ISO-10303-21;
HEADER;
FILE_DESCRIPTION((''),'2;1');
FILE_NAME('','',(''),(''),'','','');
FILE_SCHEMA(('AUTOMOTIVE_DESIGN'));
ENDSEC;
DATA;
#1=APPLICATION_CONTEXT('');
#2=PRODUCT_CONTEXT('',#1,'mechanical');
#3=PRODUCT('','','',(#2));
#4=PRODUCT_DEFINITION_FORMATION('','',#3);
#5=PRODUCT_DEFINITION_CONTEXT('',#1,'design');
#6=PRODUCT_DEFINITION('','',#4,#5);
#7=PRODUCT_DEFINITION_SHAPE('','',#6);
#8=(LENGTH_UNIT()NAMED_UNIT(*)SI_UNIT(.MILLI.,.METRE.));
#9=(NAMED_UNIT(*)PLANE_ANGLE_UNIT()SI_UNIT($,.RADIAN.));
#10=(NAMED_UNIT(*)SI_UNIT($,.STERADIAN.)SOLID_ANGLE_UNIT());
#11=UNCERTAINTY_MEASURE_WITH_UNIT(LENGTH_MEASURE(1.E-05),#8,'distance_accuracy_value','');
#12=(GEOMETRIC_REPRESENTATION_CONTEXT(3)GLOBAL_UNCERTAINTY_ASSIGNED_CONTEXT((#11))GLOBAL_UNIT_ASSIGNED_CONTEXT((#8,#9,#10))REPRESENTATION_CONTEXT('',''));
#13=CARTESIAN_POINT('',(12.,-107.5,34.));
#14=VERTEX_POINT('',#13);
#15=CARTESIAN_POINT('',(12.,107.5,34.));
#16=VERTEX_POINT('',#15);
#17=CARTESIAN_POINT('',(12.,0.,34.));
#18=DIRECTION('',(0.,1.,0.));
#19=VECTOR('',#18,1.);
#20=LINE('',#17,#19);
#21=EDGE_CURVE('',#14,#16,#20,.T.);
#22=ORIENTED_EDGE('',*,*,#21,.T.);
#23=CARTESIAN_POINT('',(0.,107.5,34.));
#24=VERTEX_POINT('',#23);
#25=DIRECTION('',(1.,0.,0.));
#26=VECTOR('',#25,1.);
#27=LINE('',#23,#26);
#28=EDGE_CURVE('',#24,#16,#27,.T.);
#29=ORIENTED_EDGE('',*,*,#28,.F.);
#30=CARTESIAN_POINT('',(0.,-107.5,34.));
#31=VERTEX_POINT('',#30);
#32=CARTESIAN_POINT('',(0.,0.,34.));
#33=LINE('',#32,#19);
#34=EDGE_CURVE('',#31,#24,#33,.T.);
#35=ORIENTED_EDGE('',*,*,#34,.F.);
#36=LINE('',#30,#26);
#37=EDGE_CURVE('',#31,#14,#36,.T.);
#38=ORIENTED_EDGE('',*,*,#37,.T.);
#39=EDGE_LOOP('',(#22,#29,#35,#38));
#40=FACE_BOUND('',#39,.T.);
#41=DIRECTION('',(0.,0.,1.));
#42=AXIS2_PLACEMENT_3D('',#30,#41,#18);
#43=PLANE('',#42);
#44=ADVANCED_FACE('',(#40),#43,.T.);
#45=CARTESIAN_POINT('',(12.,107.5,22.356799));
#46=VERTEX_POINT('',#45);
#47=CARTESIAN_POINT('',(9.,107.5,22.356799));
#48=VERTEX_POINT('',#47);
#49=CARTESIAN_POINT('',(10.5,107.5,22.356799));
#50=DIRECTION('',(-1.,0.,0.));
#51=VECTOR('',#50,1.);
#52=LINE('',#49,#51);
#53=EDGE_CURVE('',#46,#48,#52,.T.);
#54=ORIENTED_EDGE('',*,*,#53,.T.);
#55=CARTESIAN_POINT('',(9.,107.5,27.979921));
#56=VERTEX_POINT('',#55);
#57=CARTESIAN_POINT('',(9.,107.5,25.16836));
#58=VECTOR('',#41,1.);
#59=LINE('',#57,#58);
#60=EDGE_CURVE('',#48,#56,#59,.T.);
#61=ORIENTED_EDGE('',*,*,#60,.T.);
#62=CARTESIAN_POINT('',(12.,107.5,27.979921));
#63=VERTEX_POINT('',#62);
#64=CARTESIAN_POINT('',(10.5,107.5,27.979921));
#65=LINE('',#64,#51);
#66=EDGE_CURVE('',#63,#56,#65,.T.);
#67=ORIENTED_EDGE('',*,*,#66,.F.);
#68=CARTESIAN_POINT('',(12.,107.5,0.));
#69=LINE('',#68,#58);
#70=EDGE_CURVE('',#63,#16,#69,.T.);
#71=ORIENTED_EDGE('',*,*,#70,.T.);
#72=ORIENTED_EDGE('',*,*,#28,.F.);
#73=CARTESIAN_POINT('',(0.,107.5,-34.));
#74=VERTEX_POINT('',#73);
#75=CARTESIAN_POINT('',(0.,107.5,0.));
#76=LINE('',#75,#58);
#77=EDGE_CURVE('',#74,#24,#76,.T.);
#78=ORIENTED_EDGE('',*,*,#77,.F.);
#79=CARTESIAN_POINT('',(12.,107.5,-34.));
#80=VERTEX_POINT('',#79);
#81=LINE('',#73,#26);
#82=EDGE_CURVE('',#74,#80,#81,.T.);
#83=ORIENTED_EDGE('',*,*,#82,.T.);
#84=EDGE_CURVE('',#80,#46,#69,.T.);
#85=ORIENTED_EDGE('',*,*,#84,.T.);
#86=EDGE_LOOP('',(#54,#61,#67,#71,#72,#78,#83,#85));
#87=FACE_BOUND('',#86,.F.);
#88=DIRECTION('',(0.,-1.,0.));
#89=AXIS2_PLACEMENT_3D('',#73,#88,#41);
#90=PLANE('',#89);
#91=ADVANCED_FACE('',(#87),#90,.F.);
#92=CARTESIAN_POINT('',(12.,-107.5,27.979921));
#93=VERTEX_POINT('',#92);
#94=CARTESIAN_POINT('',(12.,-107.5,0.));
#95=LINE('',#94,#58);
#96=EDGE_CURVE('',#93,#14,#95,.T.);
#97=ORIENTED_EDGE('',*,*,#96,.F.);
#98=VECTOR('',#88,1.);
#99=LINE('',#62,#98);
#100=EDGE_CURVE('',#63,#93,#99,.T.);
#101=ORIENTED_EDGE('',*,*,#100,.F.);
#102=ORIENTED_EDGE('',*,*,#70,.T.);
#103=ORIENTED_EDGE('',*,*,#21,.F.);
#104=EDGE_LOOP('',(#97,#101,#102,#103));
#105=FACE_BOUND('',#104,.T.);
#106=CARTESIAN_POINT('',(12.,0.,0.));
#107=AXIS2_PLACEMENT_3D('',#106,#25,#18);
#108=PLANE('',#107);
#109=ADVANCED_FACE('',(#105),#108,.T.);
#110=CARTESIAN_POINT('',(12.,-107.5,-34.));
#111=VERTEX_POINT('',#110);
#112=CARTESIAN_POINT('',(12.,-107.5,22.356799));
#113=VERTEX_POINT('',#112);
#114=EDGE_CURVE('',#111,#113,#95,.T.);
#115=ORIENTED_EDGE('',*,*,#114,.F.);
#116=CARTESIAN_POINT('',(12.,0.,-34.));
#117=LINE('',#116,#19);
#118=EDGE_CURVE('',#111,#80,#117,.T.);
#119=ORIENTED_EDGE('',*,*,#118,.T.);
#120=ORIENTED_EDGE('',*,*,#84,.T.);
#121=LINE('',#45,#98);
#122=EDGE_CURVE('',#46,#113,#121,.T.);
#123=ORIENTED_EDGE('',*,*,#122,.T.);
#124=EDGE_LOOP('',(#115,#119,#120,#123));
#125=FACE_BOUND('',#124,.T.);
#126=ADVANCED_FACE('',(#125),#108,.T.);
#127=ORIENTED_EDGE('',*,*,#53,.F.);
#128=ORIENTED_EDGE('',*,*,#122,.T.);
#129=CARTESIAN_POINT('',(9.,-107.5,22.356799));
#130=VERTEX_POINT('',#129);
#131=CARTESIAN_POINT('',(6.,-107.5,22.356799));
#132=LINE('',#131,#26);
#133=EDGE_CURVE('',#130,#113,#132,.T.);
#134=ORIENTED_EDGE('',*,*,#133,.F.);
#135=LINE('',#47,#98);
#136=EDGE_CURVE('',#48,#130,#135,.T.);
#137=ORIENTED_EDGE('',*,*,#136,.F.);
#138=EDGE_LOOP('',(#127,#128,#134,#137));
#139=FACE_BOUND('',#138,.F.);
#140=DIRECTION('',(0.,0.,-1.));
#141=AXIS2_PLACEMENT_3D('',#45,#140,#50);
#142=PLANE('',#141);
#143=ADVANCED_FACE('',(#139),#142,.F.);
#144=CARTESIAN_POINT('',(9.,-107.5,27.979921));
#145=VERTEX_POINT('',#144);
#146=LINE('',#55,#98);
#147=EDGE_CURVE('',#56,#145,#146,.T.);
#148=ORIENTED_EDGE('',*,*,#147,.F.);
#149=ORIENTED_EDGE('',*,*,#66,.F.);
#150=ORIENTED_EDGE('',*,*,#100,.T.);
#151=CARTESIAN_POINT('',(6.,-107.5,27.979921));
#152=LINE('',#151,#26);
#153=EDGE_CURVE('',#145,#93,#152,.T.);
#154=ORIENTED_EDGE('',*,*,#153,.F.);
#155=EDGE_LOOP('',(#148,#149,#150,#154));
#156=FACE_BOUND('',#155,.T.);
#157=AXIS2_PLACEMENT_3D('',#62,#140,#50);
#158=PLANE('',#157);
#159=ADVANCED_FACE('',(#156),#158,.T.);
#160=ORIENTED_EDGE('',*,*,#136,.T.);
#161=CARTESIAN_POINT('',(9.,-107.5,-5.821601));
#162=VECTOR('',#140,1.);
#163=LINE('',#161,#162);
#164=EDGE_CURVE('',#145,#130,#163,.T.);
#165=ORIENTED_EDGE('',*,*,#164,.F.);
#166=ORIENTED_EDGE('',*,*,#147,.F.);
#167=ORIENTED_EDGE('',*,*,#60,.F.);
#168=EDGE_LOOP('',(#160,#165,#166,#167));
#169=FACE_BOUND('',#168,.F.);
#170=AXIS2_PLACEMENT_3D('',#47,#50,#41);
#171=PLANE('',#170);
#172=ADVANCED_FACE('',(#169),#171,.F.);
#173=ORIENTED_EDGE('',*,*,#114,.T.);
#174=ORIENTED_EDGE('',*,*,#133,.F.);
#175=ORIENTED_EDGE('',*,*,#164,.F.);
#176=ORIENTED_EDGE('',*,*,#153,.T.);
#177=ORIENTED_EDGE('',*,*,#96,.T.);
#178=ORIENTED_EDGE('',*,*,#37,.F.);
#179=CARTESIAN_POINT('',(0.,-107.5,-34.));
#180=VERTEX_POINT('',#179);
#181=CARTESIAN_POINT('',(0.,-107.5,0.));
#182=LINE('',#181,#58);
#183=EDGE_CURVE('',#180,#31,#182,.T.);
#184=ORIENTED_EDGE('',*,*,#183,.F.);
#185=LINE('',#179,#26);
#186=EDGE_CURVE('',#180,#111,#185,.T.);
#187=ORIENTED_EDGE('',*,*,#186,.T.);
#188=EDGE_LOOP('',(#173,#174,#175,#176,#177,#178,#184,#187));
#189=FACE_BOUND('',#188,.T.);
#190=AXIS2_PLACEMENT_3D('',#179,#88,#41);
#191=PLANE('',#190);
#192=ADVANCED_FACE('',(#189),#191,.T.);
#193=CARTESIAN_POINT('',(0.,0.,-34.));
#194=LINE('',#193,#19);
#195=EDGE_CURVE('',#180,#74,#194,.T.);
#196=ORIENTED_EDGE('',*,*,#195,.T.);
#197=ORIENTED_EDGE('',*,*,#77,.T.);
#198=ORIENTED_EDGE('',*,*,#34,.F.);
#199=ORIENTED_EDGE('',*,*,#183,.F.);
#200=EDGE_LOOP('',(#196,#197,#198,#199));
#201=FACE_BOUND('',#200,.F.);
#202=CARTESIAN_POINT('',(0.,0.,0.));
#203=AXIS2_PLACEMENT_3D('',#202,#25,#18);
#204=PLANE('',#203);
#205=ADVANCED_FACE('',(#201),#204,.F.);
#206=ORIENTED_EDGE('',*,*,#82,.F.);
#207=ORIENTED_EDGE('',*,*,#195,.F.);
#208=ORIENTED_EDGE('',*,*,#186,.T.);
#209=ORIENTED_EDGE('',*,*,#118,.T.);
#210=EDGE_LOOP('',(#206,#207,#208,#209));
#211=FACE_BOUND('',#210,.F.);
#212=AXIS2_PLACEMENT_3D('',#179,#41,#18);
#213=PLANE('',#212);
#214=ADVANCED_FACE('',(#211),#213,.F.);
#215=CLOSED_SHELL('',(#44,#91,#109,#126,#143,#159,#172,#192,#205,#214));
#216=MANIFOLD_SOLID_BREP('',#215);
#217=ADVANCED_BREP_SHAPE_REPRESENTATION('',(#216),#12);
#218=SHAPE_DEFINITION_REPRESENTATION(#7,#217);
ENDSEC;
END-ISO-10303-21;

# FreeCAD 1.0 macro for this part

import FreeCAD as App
import Part
import Sketcher

V = App.Vector

doc = App.newDocument("Part")
body = doc.addObject("PartDesign::Body", "Body")

# Sketch on YZ plane
sketch1 = body.newObject("Sketcher::SketchObject", "Sketch")
sketch1.AttachmentSupport = (doc.getObject("YZ_Plane"), [""])
sketch1.MapMode = "FlatFace"
sketch1.addGeometry([
    Part.LineSegment(V(-108, 34, 0), V(-108, -34, 0)),
    Part.LineSegment(V(-108, -34, 0), V(108, -34, 0)),
    Part.LineSegment(V(108, -34, 0), V(108, 34, 0)),
    Part.LineSegment(V(108, 34, 0), V(-108, 34, 0)),
], False)
sketch1.addConstraint([
    Sketcher.Constraint("Coincident", 0, 2, 1, 1),
    Sketcher.Constraint("Coincident", 1, 2, 2, 1),
    Sketcher.Constraint("Coincident", 2, 2, 3, 1),
    Sketcher.Constraint("Coincident", 3, 2, 0, 1),
    Sketcher.Constraint("Vertical", 0),
    Sketcher.Constraint("Horizontal", 1),
    Sketcher.Constraint("Vertical", 2),
    Sketcher.Constraint("Horizontal", 3),
    Sketcher.Constraint("Symmetric", 0, 2, 2, 2, -1, 1),
    Sketcher.Constraint("DistanceX", 1, 1, 1, 2, 215.0),
    Sketcher.Constraint("DistanceY", 0, 2, 0, 1, 68.0),
])
pad1 = body.newObject("PartDesign::Pad", "Pad")
pad1.Profile = sketch1
pad1.Length = 12

# Sketch on XZ plane
sketch2 = body.newObject("Sketcher::SketchObject", "Sketch001")
sketch2.AttachmentSupport = (doc.getObject("XZ_Plane"), [""])
sketch2.MapMode = "FlatFace"
sketch2.AttachmentOffset = App.Placement(V(0, 0, -107.5), App.Rotation())
sketch2.addGeometry([
    Part.LineSegment(V(12, 28, 0), V(12, 22.4, 0)),
    Part.LineSegment(V(12, 22.4, 0), V(9, 22.4, 0)),
    Part.LineSegment(V(9, 22.4, 0), V(9, 28, 0)),
    Part.LineSegment(V(9, 28, 0), V(12, 28, 0)),
], False)
sketch2.addConstraint([
    Sketcher.Constraint("Coincident", 0, 2, 1, 1),
    Sketcher.Constraint("Coincident", 1, 2, 2, 1),
    Sketcher.Constraint("Coincident", 2, 2, 3, 1),
    Sketcher.Constraint("Coincident", 3, 2, 0, 1),
    Sketcher.Constraint("Vertical", 0),
    Sketcher.Constraint("Horizontal", 1),
    Sketcher.Constraint("Vertical", 2),
    Sketcher.Constraint("Horizontal", 3),
    Sketcher.Constraint("DistanceX", 1, 2, 1, 1, 3.0),
    Sketcher.Constraint("DistanceX", -1, 1, 0, 2, 12.0),
    Sketcher.Constraint("DistanceY", -1, 1, 0, 2, 22.356799),
    Sketcher.Constraint("DistanceY", 0, 2, 0, 1, 5.623123),
])
pocket1 = body.newObject("PartDesign::Pocket", "Pocket")
pocket1.Profile = sketch2
pocket1.Length = 300
pocket1.Reversed = True

doc.recompute()
